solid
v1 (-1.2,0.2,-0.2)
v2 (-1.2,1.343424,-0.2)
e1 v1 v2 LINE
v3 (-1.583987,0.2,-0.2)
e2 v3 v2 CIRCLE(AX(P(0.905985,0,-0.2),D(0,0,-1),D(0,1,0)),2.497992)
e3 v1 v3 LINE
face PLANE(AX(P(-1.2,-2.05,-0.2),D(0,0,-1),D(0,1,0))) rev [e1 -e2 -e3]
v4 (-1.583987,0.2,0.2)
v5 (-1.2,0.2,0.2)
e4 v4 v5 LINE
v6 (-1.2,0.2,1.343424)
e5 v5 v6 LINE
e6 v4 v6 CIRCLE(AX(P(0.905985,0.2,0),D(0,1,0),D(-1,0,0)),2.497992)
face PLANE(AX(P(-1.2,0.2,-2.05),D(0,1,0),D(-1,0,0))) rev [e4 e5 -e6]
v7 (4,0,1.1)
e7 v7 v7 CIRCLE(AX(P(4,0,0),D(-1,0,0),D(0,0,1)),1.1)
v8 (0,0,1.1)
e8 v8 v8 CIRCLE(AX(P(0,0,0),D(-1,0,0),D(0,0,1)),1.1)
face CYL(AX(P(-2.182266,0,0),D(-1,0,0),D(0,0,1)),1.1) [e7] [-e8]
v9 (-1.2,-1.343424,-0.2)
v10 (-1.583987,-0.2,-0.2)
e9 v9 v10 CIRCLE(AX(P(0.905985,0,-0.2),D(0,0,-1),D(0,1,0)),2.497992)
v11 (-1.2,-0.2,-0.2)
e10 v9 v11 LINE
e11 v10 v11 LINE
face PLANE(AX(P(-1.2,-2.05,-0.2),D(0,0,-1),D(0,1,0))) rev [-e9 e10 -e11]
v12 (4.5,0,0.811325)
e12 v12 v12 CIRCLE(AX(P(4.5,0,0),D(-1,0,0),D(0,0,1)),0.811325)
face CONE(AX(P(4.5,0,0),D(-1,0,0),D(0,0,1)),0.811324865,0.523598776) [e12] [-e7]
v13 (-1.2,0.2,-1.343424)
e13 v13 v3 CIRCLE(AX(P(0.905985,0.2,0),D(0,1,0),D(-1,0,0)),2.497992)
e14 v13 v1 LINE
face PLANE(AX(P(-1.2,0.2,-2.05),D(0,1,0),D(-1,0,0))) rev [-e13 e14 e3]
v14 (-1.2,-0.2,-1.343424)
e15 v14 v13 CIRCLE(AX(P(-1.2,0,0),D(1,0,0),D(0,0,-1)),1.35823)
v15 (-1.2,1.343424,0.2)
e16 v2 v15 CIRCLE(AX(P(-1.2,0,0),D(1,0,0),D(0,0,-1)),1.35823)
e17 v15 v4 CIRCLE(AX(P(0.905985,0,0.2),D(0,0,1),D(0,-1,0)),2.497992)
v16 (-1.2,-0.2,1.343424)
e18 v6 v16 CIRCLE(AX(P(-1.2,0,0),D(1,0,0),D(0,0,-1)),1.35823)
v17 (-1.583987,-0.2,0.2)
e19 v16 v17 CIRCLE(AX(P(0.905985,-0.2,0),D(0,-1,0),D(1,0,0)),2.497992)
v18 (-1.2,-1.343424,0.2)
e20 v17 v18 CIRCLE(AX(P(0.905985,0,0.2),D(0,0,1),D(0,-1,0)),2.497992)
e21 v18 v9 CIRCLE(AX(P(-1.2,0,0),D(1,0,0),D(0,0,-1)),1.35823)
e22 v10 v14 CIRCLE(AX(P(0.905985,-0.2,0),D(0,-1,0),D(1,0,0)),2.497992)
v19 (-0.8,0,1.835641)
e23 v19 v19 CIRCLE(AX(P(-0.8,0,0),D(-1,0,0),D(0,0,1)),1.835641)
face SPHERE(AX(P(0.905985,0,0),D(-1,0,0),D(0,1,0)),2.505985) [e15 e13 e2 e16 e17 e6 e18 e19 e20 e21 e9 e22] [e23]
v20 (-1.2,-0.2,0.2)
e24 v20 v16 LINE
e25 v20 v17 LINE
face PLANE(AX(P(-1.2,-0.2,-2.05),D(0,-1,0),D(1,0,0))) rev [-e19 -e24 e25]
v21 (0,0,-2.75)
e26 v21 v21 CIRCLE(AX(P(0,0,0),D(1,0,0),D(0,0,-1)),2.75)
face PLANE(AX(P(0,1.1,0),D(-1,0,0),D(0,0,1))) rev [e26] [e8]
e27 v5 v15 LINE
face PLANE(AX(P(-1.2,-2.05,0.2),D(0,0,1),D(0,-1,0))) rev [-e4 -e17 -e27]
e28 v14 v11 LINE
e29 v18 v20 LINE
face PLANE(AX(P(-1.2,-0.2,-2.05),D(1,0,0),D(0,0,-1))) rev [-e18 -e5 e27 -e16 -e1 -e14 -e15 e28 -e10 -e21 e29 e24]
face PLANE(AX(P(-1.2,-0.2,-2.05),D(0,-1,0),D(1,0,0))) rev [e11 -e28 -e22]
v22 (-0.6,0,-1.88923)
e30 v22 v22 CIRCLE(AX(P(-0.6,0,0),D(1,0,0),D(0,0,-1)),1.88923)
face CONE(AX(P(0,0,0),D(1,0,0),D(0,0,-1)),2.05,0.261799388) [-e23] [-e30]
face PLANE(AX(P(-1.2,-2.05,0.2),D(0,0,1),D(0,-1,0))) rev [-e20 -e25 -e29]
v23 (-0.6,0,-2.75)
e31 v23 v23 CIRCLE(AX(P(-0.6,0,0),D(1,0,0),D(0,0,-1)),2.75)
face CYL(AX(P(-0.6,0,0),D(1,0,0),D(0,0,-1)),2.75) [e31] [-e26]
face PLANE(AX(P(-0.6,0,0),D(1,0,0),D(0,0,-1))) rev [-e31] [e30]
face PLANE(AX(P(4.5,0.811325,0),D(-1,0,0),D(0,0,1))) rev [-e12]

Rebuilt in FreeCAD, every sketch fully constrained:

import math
import FreeCAD as App
import Part
import Sketcher

V = App.Vector
Q = App.Units.Quantity

doc = App.newDocument("Part")
body = doc.addObject("PartDesign::Body", "Body")

# Sketch on XY plane
sketch1 = body.newObject("Sketcher::SketchObject", "Sketch")
sketch1.AttachmentSupport = (doc.getObject("XY_Plane"), [""])
sketch1.MapMode = "FlatFace"
sketch1.addGeometry(Part.LineSegment(V(0, 1.1, 0), V(0, 2, 0)), False)
sketch1.addGeometry(Part.LineSegment(V(0, 2, 0), V(-0.8, 1.8, 0)), False)
sketch1.addGeometry(Part.ArcOfCircle(Part.Circle(V(0.9, 0, 0), V(0, 0, 1), 2.5), math.radians(133), math.radians(180)), False)
sketch1.addGeometry(Part.LineSegment(V(-1.6, 0, 0), V(4.5, 0, 0)), False)
sketch1.addGeometry(Part.LineSegment(V(4.5, 0, 0), V(4.5, 0.8, 0)), False)
sketch1.addGeometry(Part.LineSegment(V(4.5, 0.8, 0), V(4, 1.1, 0)), False)
sketch1.addGeometry(Part.LineSegment(V(4, 1.1, 0), V(0, 1.1, 0)), False)
sketch1.addConstraint(Sketcher.Constraint("Coincident", 0, 2, 1, 1))
sketch1.addConstraint(Sketcher.Constraint("Coincident", 1, 2, 2, 1))
sketch1.addConstraint(Sketcher.Constraint("Coincident", 2, 2, 3, 1))
sketch1.addConstraint(Sketcher.Constraint("Coincident", 3, 2, 4, 1))
sketch1.addConstraint(Sketcher.Constraint("Coincident", 4, 2, 5, 1))
sketch1.addConstraint(Sketcher.Constraint("Coincident", 5, 2, 6, 1))
sketch1.addConstraint(Sketcher.Constraint("Coincident", 6, 2, 0, 1))
sketch1.addConstraint(Sketcher.Constraint("Vertical", 0))
sketch1.addConstraint(Sketcher.Constraint("Horizontal", 3))
sketch1.addConstraint(Sketcher.Constraint("Vertical", 4))
sketch1.addConstraint(Sketcher.Constraint("Horizontal", 6))
sketch1.addConstraint(Sketcher.Constraint("PointOnObject", 2, 3, -1))
sketch1.addConstraint(Sketcher.Constraint("PointOnObject", 0, 2, -2))
sketch1.addConstraint(Sketcher.Constraint("PointOnObject", 2, 2, -1))
sketch1.addConstraint(Sketcher.Constraint("DistanceX", 6, 2, 6, 1, 4.0))
sketch1.addConstraint(Sketcher.Constraint("Angle", 1, Q("-165 deg")))
sketch1.addConstraint(Sketcher.Constraint("Angle", 5, Q("150 deg")))
sketch1.addConstraint(Sketcher.Constraint("DistanceX", 3, 1, 3, 2, 6.1))
sketch1.addConstraint(Sketcher.Constraint("DistanceY", 0, 1, 0, 2, 0.95))
sketch1.addConstraint(Sketcher.Constraint("DistanceX", 1, 2, -1, 1, 0.8))
sketch1.addConstraint(Sketcher.Constraint("DistanceX", 2, 2, -1, 1, 1.6))
sketch1.addConstraint(Sketcher.Constraint("DistanceY", -1, 1, 5, 2, 1.1))
revolution = body.newObject("PartDesign::Revolution", "Revolution")
revolution.Profile = sketch1
revolution.ReferenceAxis = (sketch1, ["H_Axis"])
revolution.Angle = 360

# Sketch on XY plane
sketch2 = body.newObject("Sketcher::SketchObject", "Sketch001")
sketch2.AttachmentSupport = (doc.getObject("XY_Plane"), [""])
sketch2.MapMode = "FlatFace"
sketch2.addGeometry(Part.LineSegment(V(-1.6, 0.2, 0), V(-1.6, -0.2, 0)), False)
sketch2.addGeometry(Part.LineSegment(V(-1.6, -0.2, 0), V(-1.2, -0.2, 0)), False)
sketch2.addGeometry(Part.LineSegment(V(-1.2, -0.2, 0), V(-1.2, 0.2, 0)), False)
sketch2.addGeometry(Part.LineSegment(V(-1.2, 0.2, 0), V(-1.6, 0.2, 0)), False)
sketch2.addConstraint(Sketcher.Constraint("Coincident", 0, 2, 1, 1))
sketch2.addConstraint(Sketcher.Constraint("Coincident", 1, 2, 2, 1))
sketch2.addConstraint(Sketcher.Constraint("Coincident", 2, 2, 3, 1))
sketch2.addConstraint(Sketcher.Constraint("Coincident", 3, 2, 0, 1))
sketch2.addConstraint(Sketcher.Constraint("Vertical", 0))
sketch2.addConstraint(Sketcher.Constraint("Horizontal", 1))
sketch2.addConstraint(Sketcher.Constraint("Vertical", 2))
sketch2.addConstraint(Sketcher.Constraint("Horizontal", 3))
sketch2.addConstraint(Sketcher.Constraint("Equal", 3, 0))
sketch2.addConstraint(Sketcher.Constraint("DistanceX", 1, 1, 1, 2, 0.4))
sketch2.addConstraint(Sketcher.Constraint("DistanceX", 0, 2, -1, 1, 1.6))
sketch2.addConstraint(Sketcher.Constraint("DistanceY", 0, 2, -1, 1, 0.2))
pocket1 = body.newObject("PartDesign::Pocket", "Pocket")
pocket1.Profile = sketch2
pocket1.Length = 12.706073
pocket1.Midplane = True
doc.recompute()

polarpattern = body.newObject("PartDesign::PolarPattern", "PolarPattern")
polarpattern.Originals = [pocket1]
polarpattern.Axis = (doc.getObject("X_Axis"), [""])
polarpattern.Angle = 90
polarpattern.Occurrences = 2
polarpattern.Reversed = True
body.Tip = polarpattern

# Sketch on YZ plane
sketch3 = body.newObject("Sketcher::SketchObject", "Sketch002")
sketch3.AttachmentSupport = (doc.getObject("YZ_Plane"), [""])
sketch3.MapMode = "FlatFace"
sketch3.addGeometry(Part.Circle(V(0, 0, 0), V(0, 0, 1), 2.8), False)
sketch3.addConstraint(Sketcher.Constraint("Coincident", 0, 3, -1, 1))
sketch3.addConstraint(Sketcher.Constraint("Diameter", 0, 5.5))
pad1 = body.newObject("PartDesign::Pad", "Pad")
pad1.Profile = sketch3
pad1.Length = 0.6
pad1.Reversed = True

doc.recompute()
